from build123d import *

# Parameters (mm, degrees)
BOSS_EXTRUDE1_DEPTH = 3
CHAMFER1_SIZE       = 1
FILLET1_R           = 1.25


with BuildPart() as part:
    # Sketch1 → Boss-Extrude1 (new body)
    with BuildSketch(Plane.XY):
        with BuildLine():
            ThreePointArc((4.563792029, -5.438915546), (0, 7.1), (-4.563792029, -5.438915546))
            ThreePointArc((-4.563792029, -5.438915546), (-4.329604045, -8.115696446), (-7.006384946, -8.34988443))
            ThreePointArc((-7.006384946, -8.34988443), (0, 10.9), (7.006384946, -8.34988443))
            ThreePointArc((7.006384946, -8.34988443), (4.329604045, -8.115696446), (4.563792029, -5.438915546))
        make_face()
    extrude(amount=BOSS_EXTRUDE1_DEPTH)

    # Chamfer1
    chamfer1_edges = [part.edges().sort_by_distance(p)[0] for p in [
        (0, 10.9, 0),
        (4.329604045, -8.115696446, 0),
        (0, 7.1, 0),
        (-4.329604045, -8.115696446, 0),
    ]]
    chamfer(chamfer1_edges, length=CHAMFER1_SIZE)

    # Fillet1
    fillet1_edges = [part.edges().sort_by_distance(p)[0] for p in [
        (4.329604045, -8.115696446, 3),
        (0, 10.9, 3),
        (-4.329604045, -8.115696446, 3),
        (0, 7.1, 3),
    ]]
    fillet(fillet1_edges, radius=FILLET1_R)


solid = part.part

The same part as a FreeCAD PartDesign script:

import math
import FreeCAD as App
import Part
import Sketcher

V = App.Vector
Q = App.Units.Quantity


def edges_at(feature, points):
    """Names of the edges that pass closest to the given points."""
    edges = feature.Shape.Edges
    near = lambda p: min(range(len(edges)), key=lambda i: edges[i].distToShape(Part.Vertex(*p))[0])
    return sorted({f"Edge{near(p) + 1}" for p in points})

doc = App.newDocument("Part")
body = doc.addObject("PartDesign::Body", "Body")

# Sketch on XY plane
sketch1 = doc.addObject("Sketcher::SketchObject", "Sketch")
body.addObject(sketch1)
sketch1.AttachmentSupport = (doc.XY_Plane, [""])
sketch1.MapMode = "FlatFace"
sketch1.addGeometry([
    Part.ArcOfCircle(Part.Circle(V(0, 0, 0), V(0, 0, 1), 7.1), math.radians(-50), math.radians(230)),
    Part.ArcOfCircle(Part.Circle(V(5.8, -6.9, 0), V(0, 0, 1), 1.9), math.radians(130), math.radians(310)),
    Part.ArcOfCircle(Part.Circle(V(0, 0, 0), V(0, 0, 1), 10.9), math.radians(-50), math.radians(230)),
    Part.ArcOfCircle(Part.Circle(V(-5.8, -6.9, 0), V(0, 0, 1), 1.9), math.radians(-130), math.radians(50)),
], False)
sketch1.addConstraint([
    Sketcher.Constraint("Tangent", 0, 1, 1, 1),
    Sketcher.Constraint("Tangent", 1, 2, 2, 1),
    Sketcher.Constraint("Tangent", 2, 2, 3, 1),
    Sketcher.Constraint("Tangent", 3, 2, 0, 2),
    Sketcher.Constraint("Coincident", 0, 3, -1, 1),
    Sketcher.Constraint("Coincident", 2, 3, -1, 1),
    Sketcher.Constraint("Horizontal", 1, 3, 3, 3),
    Sketcher.Constraint("Radius", 0, Q("7.1 mm")),
    Sketcher.Constraint("Radius", 1, Q("1.9 mm")),
    Sketcher.Constraint("DistanceY", 1, 3, -1, 1, Q("6.8944 mm")),
])
pad1 = doc.addObject("PartDesign::Pad", "Pad")
body.addObject(pad1)
pad1.Profile = sketch1
pad1.Length = 3
doc.recompute()

chamfer = doc.addObject("PartDesign::Chamfer", "Chamfer")
body.addObject(chamfer)
chamfer.Base = (pad1, edges_at(pad1, [
    (0, 10.9, 0),
    (4.33, -8.116, 0),
    (0, 7.1, 0),
    (-4.33, -8.116, 0),
]))
chamfer.Size = 1
doc.recompute()

fillet = doc.addObject("PartDesign::Fillet", "Fillet")
body.addObject(fillet)
fillet.Base = (chamfer, edges_at(chamfer, [
    (4.33, -8.116, 3),
    (0, 10.9, 3),
    (-4.33, -8.116, 3),
    (0, 7.1, 3),
]))
fillet.Radius = 1.25

doc.recompute()
